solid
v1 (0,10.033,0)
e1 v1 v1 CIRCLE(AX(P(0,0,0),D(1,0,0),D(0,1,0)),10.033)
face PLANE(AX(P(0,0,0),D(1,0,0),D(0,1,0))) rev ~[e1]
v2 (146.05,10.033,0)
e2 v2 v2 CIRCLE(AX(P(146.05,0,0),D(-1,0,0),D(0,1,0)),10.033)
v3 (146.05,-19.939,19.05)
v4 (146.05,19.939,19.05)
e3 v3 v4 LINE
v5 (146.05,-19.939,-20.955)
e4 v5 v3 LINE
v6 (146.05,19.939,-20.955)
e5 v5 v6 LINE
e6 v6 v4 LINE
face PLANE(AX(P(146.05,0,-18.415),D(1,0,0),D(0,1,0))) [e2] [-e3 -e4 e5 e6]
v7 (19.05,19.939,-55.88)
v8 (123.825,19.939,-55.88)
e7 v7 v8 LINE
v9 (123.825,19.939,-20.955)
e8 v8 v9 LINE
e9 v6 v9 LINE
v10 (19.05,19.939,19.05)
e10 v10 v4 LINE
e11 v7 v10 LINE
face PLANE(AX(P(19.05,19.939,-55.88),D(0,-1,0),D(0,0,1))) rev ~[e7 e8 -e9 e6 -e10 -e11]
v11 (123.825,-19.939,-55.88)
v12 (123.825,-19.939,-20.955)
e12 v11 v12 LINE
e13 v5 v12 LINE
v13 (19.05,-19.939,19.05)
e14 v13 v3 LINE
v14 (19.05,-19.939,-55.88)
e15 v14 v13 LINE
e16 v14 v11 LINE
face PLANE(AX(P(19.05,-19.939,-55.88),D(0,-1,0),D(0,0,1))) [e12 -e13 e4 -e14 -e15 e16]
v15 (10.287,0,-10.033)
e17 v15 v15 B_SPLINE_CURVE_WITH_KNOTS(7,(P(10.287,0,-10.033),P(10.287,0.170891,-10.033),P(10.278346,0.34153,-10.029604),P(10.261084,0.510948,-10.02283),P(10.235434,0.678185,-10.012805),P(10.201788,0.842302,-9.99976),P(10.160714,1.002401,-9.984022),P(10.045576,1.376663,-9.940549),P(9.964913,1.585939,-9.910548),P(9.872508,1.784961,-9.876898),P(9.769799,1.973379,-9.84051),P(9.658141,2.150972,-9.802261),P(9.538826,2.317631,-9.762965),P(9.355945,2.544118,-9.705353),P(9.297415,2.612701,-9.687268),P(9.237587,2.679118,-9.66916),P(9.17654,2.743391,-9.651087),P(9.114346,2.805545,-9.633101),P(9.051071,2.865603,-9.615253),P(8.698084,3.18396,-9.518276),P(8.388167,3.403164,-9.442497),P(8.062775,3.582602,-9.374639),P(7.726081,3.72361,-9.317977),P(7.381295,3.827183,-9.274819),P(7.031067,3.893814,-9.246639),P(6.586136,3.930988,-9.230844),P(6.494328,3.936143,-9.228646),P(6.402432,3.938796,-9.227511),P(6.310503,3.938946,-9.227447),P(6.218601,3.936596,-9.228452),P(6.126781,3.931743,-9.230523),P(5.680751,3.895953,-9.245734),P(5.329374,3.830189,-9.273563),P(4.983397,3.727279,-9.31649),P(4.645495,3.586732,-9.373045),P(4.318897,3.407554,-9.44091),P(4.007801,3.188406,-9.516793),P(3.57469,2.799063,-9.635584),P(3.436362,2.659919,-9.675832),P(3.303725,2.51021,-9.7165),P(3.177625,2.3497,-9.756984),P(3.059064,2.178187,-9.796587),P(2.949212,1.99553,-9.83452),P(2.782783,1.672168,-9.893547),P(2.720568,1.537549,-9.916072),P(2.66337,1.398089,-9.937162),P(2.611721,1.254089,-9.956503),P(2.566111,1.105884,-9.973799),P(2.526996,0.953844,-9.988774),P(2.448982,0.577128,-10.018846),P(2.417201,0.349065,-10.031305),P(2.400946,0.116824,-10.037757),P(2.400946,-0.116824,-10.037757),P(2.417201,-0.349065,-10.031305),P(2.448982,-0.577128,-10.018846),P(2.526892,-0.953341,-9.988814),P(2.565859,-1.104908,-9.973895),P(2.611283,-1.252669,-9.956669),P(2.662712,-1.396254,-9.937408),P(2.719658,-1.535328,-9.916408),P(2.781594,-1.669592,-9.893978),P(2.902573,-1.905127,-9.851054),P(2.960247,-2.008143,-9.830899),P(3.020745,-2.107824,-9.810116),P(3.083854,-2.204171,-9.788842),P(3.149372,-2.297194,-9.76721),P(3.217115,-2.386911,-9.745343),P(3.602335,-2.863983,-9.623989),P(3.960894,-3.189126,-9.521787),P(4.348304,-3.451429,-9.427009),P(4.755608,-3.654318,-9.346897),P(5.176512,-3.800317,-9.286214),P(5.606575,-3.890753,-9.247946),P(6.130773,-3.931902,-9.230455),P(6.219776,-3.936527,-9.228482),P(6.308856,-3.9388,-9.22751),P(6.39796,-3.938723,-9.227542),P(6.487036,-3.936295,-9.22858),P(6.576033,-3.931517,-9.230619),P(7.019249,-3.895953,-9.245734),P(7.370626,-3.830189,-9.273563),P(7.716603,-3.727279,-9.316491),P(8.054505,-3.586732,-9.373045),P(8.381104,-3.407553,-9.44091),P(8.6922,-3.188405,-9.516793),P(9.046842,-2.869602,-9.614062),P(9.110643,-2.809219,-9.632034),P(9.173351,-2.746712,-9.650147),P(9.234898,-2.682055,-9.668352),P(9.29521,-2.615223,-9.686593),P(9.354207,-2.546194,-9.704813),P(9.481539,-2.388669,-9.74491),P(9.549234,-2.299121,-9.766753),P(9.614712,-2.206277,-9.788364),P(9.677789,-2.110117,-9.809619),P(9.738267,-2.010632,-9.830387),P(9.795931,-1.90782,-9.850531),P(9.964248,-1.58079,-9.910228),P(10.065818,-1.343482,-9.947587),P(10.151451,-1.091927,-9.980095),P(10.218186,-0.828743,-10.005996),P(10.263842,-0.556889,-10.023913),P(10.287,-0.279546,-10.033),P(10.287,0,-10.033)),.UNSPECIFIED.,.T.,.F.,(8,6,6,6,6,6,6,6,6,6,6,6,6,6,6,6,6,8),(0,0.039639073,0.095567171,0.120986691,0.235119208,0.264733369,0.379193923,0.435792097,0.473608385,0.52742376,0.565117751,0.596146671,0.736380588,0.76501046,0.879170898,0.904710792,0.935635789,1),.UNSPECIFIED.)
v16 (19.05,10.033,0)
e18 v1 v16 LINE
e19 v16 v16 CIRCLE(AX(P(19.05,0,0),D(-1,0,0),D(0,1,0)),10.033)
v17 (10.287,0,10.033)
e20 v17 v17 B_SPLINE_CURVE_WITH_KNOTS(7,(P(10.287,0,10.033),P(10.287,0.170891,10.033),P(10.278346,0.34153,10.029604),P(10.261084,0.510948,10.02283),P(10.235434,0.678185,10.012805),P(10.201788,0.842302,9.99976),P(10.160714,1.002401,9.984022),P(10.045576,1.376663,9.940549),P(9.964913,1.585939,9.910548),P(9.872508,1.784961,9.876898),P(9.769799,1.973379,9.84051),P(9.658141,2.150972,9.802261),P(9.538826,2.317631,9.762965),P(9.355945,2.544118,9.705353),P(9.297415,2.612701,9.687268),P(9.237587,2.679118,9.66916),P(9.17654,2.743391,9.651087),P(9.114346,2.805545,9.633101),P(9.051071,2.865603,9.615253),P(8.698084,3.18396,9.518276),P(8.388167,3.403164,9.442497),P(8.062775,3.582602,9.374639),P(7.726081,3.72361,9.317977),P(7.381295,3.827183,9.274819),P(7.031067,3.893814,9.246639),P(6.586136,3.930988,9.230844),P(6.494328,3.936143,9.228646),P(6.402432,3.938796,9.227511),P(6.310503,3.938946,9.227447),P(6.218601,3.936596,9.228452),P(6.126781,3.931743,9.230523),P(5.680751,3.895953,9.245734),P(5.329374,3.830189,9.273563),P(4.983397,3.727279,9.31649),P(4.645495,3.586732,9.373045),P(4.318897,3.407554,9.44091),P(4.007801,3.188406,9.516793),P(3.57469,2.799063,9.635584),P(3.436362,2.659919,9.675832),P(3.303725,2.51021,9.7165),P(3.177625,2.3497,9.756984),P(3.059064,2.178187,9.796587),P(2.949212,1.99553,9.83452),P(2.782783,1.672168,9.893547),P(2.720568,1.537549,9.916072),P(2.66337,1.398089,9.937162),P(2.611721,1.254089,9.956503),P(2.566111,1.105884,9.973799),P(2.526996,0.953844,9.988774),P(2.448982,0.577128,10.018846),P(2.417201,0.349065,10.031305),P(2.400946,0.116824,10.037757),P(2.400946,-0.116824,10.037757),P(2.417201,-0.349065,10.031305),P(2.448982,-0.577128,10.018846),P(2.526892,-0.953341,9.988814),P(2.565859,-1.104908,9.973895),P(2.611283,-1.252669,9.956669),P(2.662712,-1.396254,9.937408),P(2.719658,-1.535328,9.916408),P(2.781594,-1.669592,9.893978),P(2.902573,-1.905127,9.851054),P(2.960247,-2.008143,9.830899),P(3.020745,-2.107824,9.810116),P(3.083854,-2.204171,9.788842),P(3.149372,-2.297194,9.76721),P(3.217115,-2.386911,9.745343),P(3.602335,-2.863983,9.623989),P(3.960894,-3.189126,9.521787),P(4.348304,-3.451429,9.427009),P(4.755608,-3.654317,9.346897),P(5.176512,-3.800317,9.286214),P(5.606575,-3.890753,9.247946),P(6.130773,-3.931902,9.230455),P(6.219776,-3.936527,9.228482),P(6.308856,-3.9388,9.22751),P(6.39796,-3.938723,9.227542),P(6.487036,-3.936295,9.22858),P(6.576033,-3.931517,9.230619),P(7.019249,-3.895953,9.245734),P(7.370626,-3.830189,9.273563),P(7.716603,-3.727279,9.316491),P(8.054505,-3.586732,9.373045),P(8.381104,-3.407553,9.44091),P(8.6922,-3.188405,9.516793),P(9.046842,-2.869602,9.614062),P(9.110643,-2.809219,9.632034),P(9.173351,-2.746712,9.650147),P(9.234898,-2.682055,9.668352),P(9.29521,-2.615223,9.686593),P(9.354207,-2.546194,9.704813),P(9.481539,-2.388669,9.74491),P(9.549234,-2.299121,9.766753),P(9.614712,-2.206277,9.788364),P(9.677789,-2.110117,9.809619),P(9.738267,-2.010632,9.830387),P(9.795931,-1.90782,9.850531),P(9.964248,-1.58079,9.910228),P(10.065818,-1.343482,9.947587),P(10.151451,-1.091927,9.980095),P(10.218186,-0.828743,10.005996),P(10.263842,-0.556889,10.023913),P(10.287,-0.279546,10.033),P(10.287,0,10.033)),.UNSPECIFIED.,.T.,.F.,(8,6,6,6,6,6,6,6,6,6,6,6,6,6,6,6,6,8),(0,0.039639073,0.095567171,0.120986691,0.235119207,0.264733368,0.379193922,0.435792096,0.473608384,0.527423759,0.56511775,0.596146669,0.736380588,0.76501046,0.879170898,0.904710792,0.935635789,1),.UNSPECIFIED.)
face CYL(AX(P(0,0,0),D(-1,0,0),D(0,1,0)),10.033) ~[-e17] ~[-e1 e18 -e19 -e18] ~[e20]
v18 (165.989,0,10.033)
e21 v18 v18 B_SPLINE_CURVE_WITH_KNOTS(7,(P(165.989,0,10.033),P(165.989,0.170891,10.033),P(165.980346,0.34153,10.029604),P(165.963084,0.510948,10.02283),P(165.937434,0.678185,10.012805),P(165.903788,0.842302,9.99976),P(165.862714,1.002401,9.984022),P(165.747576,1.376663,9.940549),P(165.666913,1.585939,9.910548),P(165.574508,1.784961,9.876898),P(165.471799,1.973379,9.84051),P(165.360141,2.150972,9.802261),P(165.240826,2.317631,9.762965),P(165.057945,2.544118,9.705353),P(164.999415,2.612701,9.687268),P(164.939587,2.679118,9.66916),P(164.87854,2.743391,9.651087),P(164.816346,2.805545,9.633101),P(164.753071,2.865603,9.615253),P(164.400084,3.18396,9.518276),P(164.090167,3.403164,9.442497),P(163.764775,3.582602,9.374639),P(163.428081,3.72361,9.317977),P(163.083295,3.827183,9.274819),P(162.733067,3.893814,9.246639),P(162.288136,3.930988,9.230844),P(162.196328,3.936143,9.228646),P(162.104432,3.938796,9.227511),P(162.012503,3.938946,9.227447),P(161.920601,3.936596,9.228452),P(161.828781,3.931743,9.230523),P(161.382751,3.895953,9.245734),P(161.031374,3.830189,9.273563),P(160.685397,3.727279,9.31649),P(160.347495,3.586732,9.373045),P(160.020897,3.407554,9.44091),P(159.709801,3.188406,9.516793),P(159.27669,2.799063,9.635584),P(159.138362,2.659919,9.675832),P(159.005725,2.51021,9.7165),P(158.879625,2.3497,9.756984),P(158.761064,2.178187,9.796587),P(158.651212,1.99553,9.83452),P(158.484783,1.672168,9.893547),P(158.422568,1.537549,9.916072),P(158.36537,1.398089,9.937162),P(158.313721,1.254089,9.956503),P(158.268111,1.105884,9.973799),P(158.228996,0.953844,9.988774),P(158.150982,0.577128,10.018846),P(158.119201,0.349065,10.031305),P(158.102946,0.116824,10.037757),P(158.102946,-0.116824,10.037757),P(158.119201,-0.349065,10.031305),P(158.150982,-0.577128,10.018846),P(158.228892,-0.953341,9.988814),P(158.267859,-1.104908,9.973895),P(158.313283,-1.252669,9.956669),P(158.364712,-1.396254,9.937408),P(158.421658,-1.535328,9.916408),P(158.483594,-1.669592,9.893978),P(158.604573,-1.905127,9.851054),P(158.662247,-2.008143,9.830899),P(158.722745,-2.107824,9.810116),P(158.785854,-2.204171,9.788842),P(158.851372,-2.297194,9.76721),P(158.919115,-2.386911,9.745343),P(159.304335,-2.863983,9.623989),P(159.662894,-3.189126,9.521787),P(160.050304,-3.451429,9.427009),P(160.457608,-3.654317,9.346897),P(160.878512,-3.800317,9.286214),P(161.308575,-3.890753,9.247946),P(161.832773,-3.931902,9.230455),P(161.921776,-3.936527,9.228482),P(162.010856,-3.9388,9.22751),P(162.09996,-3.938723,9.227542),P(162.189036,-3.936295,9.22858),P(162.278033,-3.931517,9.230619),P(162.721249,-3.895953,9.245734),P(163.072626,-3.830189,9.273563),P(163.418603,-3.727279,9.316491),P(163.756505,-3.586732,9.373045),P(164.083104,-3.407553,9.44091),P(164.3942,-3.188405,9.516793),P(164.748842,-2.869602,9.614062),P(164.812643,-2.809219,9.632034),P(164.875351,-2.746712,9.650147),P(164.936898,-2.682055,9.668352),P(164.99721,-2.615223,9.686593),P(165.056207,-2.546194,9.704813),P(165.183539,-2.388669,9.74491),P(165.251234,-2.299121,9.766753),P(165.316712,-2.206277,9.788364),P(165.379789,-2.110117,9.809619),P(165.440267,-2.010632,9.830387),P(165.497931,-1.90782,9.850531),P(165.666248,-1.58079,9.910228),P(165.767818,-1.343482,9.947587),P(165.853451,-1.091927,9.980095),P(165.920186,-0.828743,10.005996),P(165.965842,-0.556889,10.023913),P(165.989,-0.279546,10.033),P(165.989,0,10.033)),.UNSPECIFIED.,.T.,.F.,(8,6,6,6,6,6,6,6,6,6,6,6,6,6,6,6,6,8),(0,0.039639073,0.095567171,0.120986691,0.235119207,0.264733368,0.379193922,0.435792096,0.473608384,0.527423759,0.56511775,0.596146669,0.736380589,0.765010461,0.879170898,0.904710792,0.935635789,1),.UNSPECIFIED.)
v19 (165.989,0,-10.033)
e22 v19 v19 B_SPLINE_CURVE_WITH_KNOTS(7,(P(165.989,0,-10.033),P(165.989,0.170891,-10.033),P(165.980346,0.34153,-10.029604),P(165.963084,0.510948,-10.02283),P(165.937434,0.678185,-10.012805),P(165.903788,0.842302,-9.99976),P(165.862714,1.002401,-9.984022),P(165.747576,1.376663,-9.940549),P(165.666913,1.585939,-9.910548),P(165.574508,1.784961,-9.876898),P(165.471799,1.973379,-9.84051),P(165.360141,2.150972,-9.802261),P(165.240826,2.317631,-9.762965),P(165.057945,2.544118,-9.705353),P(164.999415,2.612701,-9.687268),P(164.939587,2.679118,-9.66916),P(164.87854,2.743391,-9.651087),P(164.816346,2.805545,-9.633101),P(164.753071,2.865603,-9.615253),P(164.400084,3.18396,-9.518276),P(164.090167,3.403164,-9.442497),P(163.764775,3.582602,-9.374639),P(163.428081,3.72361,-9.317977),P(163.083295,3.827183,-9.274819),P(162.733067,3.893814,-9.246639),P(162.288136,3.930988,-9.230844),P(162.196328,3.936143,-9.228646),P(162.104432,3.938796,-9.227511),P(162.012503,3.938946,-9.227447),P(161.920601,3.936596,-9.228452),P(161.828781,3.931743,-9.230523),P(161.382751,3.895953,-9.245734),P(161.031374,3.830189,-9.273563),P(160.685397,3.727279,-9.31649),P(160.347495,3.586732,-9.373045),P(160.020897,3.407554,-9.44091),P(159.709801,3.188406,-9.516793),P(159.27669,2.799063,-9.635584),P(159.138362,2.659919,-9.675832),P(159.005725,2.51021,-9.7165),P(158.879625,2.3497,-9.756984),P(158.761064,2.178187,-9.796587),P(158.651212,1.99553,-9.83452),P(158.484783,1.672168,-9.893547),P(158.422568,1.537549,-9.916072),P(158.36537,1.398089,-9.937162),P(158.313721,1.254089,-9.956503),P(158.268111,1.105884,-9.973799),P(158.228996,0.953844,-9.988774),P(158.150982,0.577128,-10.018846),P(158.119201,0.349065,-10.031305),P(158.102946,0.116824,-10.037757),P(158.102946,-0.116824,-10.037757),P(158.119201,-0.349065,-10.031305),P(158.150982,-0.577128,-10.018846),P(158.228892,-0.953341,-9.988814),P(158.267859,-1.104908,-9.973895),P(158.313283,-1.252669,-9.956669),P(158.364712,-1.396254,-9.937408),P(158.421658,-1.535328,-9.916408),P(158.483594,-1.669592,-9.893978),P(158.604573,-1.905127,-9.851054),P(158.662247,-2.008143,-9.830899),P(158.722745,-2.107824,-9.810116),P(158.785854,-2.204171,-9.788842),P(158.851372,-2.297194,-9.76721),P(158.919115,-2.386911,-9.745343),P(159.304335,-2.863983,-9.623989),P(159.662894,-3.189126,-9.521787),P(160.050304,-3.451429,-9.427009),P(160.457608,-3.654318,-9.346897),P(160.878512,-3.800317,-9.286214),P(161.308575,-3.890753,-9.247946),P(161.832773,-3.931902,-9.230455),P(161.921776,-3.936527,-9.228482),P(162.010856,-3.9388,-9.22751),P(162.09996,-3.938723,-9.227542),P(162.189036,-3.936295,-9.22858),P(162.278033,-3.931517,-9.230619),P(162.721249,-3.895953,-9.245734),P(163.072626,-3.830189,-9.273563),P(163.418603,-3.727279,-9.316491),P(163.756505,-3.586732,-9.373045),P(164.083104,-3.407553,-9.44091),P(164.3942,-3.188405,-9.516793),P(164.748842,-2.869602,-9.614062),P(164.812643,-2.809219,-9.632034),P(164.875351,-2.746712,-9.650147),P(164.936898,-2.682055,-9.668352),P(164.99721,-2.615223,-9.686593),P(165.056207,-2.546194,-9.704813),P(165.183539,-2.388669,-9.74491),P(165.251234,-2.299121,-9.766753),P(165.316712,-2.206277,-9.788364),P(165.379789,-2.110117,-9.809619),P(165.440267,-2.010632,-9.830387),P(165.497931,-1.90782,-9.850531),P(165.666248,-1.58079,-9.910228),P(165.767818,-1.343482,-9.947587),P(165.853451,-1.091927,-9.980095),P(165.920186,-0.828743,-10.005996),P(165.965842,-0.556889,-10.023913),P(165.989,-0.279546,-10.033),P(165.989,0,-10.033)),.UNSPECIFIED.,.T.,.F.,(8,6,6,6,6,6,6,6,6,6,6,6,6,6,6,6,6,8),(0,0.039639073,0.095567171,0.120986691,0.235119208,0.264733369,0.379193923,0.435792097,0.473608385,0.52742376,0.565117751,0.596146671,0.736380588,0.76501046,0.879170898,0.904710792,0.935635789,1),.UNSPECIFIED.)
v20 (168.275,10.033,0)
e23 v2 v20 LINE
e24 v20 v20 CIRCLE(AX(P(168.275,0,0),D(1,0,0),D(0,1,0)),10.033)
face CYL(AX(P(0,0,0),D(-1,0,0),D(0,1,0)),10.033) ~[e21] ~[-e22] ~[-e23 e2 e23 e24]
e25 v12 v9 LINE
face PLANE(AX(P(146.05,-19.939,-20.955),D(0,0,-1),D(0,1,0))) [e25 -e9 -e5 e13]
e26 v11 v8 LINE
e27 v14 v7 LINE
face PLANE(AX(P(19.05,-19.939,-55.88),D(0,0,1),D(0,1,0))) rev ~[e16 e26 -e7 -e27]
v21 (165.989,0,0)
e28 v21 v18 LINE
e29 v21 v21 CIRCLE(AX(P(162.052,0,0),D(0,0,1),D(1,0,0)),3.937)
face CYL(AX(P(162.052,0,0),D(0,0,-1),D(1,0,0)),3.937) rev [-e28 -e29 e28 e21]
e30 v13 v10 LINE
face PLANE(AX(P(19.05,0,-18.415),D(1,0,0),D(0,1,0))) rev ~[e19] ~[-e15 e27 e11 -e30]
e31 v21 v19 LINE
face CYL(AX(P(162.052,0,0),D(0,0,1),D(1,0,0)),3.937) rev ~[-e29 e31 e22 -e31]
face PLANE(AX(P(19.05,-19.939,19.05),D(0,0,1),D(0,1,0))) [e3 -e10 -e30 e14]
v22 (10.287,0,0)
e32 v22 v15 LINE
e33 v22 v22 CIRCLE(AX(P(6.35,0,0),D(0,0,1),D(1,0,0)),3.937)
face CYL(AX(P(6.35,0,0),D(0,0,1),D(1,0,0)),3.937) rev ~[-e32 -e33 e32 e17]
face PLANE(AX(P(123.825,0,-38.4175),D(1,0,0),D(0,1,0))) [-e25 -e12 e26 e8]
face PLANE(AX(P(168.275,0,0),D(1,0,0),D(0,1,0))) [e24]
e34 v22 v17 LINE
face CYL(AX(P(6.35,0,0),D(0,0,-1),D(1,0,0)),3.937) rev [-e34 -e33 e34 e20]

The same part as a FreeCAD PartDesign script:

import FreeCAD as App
import Part
import Sketcher
Q = App.Units.Quantity


def add_polygon(sketch, points):
    """Adds a closed chain of lines whose ends are joined by coincident constraints."""
    first, n = sketch.GeometryCount, len(points)
    for a, b in zip(points, points[1:] + points[:1]):
        sketch.addGeometry(Part.LineSegment(App.Vector(*a, 0), App.Vector(*b, 0)), False)
    for i in range(n):
        sketch.addConstraint(Sketcher.Constraint("Coincident", first + i, 2, first + (i + 1) % n, 1))

doc = App.newDocument("Part")
body = doc.addObject("PartDesign::Body", "Body")

sketch1 = body.newObject("Sketcher::SketchObject", "Sketch")
sketch1.AttachmentSupport = (doc.getObject("YZ_Plane"), [""])
sketch1.MapMode = "FlatFace"
sketch1.addGeometry(Part.Circle(App.Vector(0, 0, 0), App.Vector(0, 0, 1), 10.033), False)
sketch1.addConstraint([
    Sketcher.Constraint("Coincident", 0, 3, -1, 1),
    Sketcher.Constraint("Diameter", 0, Q("0.79 in")),
])
pad1 = body.newObject("PartDesign::Pad", "Pad")
pad1.Profile = sketch1
pad1.Length = Q("6.625 in")

sketch2 = body.newObject("Sketcher::SketchObject", "Sketch001")
sketch2.AttachmentSupport = (doc.getObject("YZ_Plane"), [""])
sketch2.MapMode = "FlatFace"
sketch2.AttachmentOffset = App.Placement(App.Vector(0, 0, 0.75 * 25.4), App.Rotation())
add_polygon(sketch2, [(-19.939, 19.05), (-19.939, -55.88), (19.939, -55.88), (19.939, 19.05)])
sketch2.addConstraint([
    Sketcher.Constraint("Vertical", 0),
    Sketcher.Constraint("Horizontal", 1),
    Sketcher.Constraint("Vertical", 2),
    Sketcher.Constraint("Horizontal", 3),
    Sketcher.Constraint("DistanceX", 1, 1, 1, 2, Q("1.57 in")),
    Sketcher.Constraint("DistanceY", 0, 2, 0, 1, Q("2.95 in")),
    Sketcher.Constraint("DistanceY", 0, 2, -1, 1, Q("2.2 in")),
    Sketcher.Constraint("DistanceX", 0, 2, -1, 1, Q("0.785 in")),
])
pad2 = body.newObject("PartDesign::Pad", "Pad001")
pad2.Profile = sketch2
pad2.Length = Q("5 in")

sketch3 = body.newObject("Sketcher::SketchObject", "Sketch002")
sketch3.AttachmentSupport = (doc.getObject("YZ_Plane"), [""])
sketch3.MapMode = "FlatFace"
sketch3.AttachmentOffset = App.Placement(App.Vector(0, 0, 5.75 * 25.4), App.Rotation())
add_polygon(sketch3, [(-19.939, -20.955), (-19.939, -55.88), (19.939, -55.88), (19.939, -20.955)])
sketch3.addConstraint([
    Sketcher.Constraint("Vertical", 0),
    Sketcher.Constraint("Horizontal", 1),
    Sketcher.Constraint("Vertical", 2),
    Sketcher.Constraint("Horizontal", 3),
    Sketcher.Constraint("DistanceX", 1, 1, 1, 2, Q("1.57 in")),
    Sketcher.Constraint("DistanceY", 0, 2, -1, 1, Q("2.2 in")),
    Sketcher.Constraint("DistanceY", 0, 2, 0, 1, Q("1.375 in")),
    Sketcher.Constraint("DistanceX", 0, 2, -1, 1, Q("0.785 in")),
])
pocket1 = body.newObject("PartDesign::Pocket", "Pocket")
pocket1.Profile = sketch3
pocket1.Length = Q("0.875 in")

sketch4 = body.newObject("Sketcher::SketchObject", "Sketch003")
sketch4.AttachmentSupport = (doc.getObject("XY_Plane"), [""])
sketch4.MapMode = "FlatFace"
sketch4.addGeometry([
    Part.Circle(App.Vector(6.35, 0, 0), App.Vector(0, 0, 1), 3.937),
    Part.Circle(App.Vector(162.052, 0, 0), App.Vector(0, 0, 1), 3.937),
], False)
sketch4.addConstraint([
    Sketcher.Constraint("Equal", 0, 1),
    Sketcher.Constraint("PointOnObject", 0, 3, -1),
    Sketcher.Constraint("PointOnObject", 1, 3, -1),
    Sketcher.Constraint("Diameter", 0, Q("0.31 in")),
    Sketcher.Constraint("DistanceX", -1, 1, 0, 3, Q("0.25 in")),
    Sketcher.Constraint("DistanceX", -1, 1, 1, 3, Q("6.38 in")),
])
pocket2 = body.newObject("PartDesign::Pocket", "Pocket001")
pocket2.Profile = sketch4
pocket2.Type = "ThroughAll"
pocket2.Midplane = True

doc.recompute()
